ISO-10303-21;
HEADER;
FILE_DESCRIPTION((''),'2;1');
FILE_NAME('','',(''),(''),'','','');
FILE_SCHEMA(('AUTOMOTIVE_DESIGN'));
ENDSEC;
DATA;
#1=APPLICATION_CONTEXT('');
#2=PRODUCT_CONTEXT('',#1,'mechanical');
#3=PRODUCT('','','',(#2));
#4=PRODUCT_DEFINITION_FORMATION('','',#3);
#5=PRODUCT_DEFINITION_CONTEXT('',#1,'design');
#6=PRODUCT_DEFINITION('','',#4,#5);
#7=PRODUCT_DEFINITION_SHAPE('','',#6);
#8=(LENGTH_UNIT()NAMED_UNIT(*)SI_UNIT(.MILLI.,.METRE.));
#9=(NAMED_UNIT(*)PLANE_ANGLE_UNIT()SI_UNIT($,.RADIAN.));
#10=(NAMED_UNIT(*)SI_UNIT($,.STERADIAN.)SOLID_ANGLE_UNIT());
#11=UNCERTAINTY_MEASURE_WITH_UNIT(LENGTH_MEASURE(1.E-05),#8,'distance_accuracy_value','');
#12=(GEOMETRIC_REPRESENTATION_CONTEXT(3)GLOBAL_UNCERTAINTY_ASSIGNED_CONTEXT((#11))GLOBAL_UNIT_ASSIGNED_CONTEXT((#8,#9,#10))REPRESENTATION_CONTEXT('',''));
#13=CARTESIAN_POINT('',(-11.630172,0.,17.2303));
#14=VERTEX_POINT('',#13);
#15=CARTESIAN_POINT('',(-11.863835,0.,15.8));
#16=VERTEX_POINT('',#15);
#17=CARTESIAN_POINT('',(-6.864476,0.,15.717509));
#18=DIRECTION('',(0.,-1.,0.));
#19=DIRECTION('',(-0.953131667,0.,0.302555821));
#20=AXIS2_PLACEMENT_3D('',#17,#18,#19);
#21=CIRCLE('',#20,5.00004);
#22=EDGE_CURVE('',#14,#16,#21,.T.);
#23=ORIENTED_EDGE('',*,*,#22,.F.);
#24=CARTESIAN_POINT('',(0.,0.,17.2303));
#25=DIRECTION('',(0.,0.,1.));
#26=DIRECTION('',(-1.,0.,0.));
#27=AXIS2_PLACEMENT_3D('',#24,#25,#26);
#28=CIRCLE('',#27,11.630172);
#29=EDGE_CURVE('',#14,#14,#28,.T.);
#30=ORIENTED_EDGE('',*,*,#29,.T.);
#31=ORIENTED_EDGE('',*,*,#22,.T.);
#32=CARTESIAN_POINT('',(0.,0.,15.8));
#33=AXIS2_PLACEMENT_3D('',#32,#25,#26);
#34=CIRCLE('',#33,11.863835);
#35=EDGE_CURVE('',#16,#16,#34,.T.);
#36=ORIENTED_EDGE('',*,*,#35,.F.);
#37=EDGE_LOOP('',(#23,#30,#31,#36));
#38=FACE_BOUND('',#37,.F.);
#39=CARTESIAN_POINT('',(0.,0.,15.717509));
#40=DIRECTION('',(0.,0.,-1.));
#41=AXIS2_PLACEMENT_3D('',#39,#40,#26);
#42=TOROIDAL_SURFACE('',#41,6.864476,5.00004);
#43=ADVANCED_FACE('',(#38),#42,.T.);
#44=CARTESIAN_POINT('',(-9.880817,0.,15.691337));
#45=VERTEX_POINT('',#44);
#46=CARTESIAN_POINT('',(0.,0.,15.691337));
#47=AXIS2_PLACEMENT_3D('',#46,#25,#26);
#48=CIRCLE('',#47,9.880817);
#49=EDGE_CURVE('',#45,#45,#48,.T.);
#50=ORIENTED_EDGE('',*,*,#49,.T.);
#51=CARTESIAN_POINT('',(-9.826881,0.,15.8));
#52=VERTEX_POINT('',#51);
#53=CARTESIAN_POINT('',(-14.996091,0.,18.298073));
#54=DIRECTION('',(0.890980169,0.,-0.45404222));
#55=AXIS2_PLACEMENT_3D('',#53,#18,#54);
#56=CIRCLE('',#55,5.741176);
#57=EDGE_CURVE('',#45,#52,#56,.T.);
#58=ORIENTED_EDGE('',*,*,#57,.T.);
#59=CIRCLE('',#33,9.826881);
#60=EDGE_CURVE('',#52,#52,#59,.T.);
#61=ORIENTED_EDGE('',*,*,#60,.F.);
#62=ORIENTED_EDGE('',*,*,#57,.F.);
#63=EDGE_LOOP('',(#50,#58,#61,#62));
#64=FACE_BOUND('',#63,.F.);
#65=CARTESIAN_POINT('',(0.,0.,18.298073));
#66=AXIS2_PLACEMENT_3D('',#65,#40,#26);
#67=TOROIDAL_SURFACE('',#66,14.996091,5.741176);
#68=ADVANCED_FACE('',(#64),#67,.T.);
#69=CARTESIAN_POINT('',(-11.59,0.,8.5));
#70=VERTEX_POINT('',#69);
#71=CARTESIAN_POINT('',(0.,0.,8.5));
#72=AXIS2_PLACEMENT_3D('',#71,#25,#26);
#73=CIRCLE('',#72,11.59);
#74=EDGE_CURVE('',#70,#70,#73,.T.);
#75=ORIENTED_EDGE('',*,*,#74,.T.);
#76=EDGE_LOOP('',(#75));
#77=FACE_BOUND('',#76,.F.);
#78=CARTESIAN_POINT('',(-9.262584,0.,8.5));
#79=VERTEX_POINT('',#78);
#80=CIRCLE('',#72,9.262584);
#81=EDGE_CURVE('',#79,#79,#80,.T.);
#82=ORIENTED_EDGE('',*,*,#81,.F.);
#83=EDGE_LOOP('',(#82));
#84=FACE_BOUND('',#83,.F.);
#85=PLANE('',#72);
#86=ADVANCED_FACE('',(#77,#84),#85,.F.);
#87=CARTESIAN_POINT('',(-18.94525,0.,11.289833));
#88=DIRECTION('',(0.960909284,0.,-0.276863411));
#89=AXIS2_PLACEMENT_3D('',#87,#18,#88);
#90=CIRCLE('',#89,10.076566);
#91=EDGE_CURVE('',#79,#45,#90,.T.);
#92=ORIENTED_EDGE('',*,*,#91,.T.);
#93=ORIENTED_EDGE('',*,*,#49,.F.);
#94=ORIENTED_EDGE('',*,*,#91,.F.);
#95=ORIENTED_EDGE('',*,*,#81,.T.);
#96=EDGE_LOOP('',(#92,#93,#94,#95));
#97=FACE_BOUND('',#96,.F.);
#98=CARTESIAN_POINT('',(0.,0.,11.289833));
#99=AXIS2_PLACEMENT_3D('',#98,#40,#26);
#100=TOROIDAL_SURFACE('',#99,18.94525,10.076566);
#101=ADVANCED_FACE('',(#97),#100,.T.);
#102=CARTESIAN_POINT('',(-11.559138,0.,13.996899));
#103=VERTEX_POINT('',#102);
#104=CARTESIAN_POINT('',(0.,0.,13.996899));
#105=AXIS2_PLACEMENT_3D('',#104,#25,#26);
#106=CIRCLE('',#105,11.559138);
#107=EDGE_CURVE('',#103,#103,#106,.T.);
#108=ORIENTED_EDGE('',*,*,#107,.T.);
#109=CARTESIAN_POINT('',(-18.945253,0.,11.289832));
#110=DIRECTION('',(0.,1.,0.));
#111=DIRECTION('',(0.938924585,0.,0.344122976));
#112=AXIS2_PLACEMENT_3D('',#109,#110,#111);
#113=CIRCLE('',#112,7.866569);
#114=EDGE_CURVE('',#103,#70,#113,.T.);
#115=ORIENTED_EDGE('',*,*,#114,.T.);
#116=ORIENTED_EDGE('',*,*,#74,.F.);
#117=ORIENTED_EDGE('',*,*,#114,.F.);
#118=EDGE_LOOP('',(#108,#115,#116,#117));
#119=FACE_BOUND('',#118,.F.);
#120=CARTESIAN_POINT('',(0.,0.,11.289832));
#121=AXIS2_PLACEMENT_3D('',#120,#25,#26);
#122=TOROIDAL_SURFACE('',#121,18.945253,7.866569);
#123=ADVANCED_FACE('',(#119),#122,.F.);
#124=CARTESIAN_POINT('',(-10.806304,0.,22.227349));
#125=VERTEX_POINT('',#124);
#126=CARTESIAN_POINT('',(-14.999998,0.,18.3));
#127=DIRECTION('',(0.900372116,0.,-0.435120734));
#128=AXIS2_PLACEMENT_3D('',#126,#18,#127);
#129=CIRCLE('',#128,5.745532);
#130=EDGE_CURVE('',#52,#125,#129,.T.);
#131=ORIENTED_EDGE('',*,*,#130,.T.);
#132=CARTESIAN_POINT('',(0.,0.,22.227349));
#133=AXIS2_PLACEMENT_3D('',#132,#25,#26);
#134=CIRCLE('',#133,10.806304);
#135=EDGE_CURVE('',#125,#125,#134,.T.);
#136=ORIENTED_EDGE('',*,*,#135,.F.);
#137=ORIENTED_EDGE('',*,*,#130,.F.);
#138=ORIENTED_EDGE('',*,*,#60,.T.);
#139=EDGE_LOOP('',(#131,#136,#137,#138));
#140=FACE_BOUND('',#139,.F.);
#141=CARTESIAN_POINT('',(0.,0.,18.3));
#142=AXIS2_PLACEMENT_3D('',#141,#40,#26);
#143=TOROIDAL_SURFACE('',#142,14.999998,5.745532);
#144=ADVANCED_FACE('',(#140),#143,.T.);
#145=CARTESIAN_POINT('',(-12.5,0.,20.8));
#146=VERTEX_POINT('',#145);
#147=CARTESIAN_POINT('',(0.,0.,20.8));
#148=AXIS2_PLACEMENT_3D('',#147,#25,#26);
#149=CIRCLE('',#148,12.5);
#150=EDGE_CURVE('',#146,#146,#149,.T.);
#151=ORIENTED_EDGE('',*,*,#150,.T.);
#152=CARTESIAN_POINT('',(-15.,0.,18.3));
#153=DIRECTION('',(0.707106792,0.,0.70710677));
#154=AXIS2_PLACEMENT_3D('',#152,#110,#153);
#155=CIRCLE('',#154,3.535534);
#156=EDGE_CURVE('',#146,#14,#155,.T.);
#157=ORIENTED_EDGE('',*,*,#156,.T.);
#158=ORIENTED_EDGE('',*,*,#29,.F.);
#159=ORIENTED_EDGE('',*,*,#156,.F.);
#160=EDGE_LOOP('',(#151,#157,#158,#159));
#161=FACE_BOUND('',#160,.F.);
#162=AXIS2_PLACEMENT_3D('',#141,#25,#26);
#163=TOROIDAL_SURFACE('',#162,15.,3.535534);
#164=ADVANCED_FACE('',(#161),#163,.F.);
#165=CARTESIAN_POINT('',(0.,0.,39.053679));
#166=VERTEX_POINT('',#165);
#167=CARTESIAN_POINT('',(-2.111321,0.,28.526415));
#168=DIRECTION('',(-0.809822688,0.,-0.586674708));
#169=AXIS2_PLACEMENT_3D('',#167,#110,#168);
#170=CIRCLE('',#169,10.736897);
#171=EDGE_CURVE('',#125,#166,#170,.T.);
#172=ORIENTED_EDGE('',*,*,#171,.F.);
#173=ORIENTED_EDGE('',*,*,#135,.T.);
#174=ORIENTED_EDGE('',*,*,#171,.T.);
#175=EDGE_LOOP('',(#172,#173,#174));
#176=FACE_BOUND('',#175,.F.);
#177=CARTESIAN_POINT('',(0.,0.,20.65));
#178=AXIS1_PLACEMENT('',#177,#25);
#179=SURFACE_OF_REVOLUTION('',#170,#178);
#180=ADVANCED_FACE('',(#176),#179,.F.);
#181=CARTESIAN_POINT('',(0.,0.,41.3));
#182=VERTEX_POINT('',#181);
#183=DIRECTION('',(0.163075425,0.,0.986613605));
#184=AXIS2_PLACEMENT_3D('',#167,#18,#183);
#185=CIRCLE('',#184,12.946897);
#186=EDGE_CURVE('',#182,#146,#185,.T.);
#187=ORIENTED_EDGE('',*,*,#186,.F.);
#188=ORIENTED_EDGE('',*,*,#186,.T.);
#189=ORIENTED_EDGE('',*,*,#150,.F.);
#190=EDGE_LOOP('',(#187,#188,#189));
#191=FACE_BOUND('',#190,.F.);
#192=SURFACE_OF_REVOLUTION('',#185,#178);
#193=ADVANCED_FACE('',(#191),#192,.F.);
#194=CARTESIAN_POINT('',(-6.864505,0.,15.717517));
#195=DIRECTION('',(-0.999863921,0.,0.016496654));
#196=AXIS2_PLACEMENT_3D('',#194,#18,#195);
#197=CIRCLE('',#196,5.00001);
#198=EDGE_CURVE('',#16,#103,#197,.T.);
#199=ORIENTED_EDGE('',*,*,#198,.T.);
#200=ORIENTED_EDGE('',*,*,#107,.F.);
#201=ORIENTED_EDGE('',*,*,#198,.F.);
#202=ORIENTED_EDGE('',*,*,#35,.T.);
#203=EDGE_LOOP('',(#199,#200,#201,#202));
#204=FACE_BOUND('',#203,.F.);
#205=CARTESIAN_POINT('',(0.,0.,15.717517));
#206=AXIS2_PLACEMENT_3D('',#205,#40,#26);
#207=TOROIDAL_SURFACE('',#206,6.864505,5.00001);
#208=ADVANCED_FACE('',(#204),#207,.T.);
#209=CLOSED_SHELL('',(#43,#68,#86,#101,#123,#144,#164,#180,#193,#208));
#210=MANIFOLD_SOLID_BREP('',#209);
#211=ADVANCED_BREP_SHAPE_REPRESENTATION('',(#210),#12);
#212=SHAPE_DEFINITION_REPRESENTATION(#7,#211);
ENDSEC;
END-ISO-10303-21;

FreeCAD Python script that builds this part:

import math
import FreeCAD as App
import Part
import Sketcher
from FreeCAD import Vector
Q = App.Units.Quantity

doc = App.newDocument("Part")
body = doc.addObject("PartDesign::Body", "Body")

# Sketch on XZ plane
sketch1 = doc.addObject("Sketcher::SketchObject", "Sketch")
body.addObject(sketch1)
sketch1.AttachmentSupport = (doc.XZ_Plane, [""])
sketch1.MapMode = "FlatFace"
sketch1.addGeometry(Part.LineSegment(Vector(0, 39.053679, 0), Vector(0, 41.3, 0)), False)
sketch1.addGeometry(Part.ArcOfCircle(Part.Circle(Vector(-2.111321, 28.526415, 0), Vector(0, 0, 1), 12.946897), math.radians(80.61455), math.radians(216.63944)), False)
sketch1.addGeometry(Part.ArcOfCircle(Part.Circle(Vector(-15, 18.3, 0), Vector(0, 0, 1), 3.535534), math.radians(-17.611243), math.radians(44.999999)), False)
sketch1.addGeometry(Part.ArcOfCircle(Part.Circle(Vector(-6.864476, 15.717509, 0), Vector(0, 0, 1), 5.00004), math.radians(162.388823), math.radians(179.054686)), False)
sketch1.addGeometry(Part.ArcOfCircle(Part.Circle(Vector(-6.864505, 15.717517, 0), Vector(0, 0, 1), 5.00001), math.radians(179.054768), math.radians(200.128258)), False)
sketch1.addGeometry(Part.ArcOfCircle(Part.Circle(Vector(-18.945253, 11.289832, 0), Vector(0, 0, 1), 7.866569), math.radians(-20.771629), math.radians(20.128268)), False)
sketch1.addGeometry(Part.LineSegment(Vector(-11.59, 8.5, 0), Vector(-9.262584, 8.5, 0)), False)
sketch1.addGeometry(Part.ArcOfCircle(Part.Circle(Vector(-18.94525, 11.289833, 0), Vector(0, 0, 1), 10.076566), math.radians(-16.073092), math.radians(25.900267)), False)
sketch1.addGeometry(Part.ArcOfCircle(Part.Circle(Vector(-14.996091, 18.298073, 0), Vector(0, 0, 1), 5.741176), math.radians(-27.003326), math.radians(-25.792628)), False)
sketch1.addGeometry(Part.ArcOfCircle(Part.Circle(Vector(-14.999998, 18.3, 0), Vector(0, 0, 1), 5.745532), math.radians(-25.792977), math.radians(43.121551)), False)
sketch1.addGeometry(Part.ArcOfCircle(Part.Circle(Vector(-2.111321, 28.526415, 0), Vector(0, 0, 1), 10.736897), math.radians(78.659361), math.radians(215.921389)), False)
sketch1.addConstraint(Sketcher.Constraint("Coincident", 0, 2, 1, 1))
sketch1.addConstraint(Sketcher.Constraint("Coincident", 1, 2, 2, 2))
sketch1.addConstraint(Sketcher.Constraint("Tangent", 2, 1, 3, 1))
sketch1.addConstraint(Sketcher.Constraint("Tangent", 3, 2, 4, 1))
sketch1.addConstraint(Sketcher.Constraint("Tangent", 4, 2, 5, 2))
sketch1.addConstraint(Sketcher.Constraint("Coincident", 5, 1, 6, 1))
sketch1.addConstraint(Sketcher.Constraint("Coincident", 6, 2, 7, 1))
sketch1.addConstraint(Sketcher.Constraint("Coincident", 7, 2, 8, 1))
sketch1.addConstraint(Sketcher.Constraint("Coincident", 8, 2, 9, 1))
sketch1.addConstraint(Sketcher.Constraint("Coincident", 9, 2, 10, 2))
sketch1.addConstraint(Sketcher.Constraint("Coincident", 10, 1, 0, 1))
sketch1.addConstraint(Sketcher.Constraint("Vertical", 0))
sketch1.addConstraint(Sketcher.Constraint("Horizontal", 6))
sketch1.addConstraint(Sketcher.Constraint("Coincident", 7, 3, 5, 3))
sketch1.addConstraint(Sketcher.Constraint("Coincident", 9, 3, 2, 3))
sketch1.addConstraint(Sketcher.Constraint("Coincident", 10, 3, 1, 3))
sketch1.addConstraint(Sketcher.Constraint("PointOnObject", 0, 2, -2))
sketch1.addConstraint(Sketcher.Constraint("Horizontal", 3, 2, 8, 2))
sketch1.addConstraint(Sketcher.Constraint("DistanceX", 2, 3, -1, 1, Q("15 mm")))
sketch1.addConstraint(Sketcher.Constraint("DistanceY", -1, 1, 2, 3, Q("18.3 mm")))
sketch1.addConstraint(Sketcher.Constraint("DistanceY", -1, 1, 0, 2, Q("41.3 mm")))
sketch1.addConstraint(Sketcher.Constraint("DistanceX", 1, 2, -1, 1, Q("12.5 mm")))
sketch1.addConstraint(Sketcher.Constraint("DistanceY", -1, 1, 1, 2, Q("20.8 mm")))
sketch1.addConstraint(Sketcher.Constraint("DistanceY", -1, 1, 3, 2, Q("15.8 mm")))
sketch1.addConstraint(Sketcher.Constraint("DistanceY", -1, 1, 5, 1, Q("8.5 mm")))
sketch1.addConstraint(Sketcher.Constraint("DistanceX", 5, 1, -1, 1, Q("11.59 mm")))
sketch1.addConstraint(Sketcher.Constraint("Radius", 3, Q("5.00004 mm")))
sketch1.addConstraint(Sketcher.Constraint("Radius", 4, Q("5.00001 mm")))
sketch1.addConstraint(Sketcher.Constraint("Radius", 5, Q("7.866569 mm")))
sketch1.addConstraint(Sketcher.Constraint("Radius", 9, Q("5.745532 mm")))
sketch1.addConstraint(Sketcher.Constraint("Radius", 1, Q("12.946897 mm")))
sketch1.addConstraint(Sketcher.Constraint("Radius", 7, Q("10.076566 mm")))
sketch1.addConstraint(Sketcher.Constraint("Radius", 8, Q("5.741176 mm")))
sketch1.addConstraint(Sketcher.Constraint("Radius", 10, Q("10.736897 mm")))
sketch1.addConstraint(Sketcher.Constraint("DistanceY", -1, 1, 2, 1, Q("17.2303 mm")))
sketch1.addConstraint(Sketcher.Constraint("DistanceX", 8, 3, -1, 1, Q("14.996091 mm")))
revolution = doc.addObject("PartDesign::Revolution", "Revolution")
body.addObject(revolution)
revolution.Profile = sketch1
revolution.ReferenceAxis = (sketch1, ["V_Axis"])
revolution.Angle = 360

doc.recompute()
